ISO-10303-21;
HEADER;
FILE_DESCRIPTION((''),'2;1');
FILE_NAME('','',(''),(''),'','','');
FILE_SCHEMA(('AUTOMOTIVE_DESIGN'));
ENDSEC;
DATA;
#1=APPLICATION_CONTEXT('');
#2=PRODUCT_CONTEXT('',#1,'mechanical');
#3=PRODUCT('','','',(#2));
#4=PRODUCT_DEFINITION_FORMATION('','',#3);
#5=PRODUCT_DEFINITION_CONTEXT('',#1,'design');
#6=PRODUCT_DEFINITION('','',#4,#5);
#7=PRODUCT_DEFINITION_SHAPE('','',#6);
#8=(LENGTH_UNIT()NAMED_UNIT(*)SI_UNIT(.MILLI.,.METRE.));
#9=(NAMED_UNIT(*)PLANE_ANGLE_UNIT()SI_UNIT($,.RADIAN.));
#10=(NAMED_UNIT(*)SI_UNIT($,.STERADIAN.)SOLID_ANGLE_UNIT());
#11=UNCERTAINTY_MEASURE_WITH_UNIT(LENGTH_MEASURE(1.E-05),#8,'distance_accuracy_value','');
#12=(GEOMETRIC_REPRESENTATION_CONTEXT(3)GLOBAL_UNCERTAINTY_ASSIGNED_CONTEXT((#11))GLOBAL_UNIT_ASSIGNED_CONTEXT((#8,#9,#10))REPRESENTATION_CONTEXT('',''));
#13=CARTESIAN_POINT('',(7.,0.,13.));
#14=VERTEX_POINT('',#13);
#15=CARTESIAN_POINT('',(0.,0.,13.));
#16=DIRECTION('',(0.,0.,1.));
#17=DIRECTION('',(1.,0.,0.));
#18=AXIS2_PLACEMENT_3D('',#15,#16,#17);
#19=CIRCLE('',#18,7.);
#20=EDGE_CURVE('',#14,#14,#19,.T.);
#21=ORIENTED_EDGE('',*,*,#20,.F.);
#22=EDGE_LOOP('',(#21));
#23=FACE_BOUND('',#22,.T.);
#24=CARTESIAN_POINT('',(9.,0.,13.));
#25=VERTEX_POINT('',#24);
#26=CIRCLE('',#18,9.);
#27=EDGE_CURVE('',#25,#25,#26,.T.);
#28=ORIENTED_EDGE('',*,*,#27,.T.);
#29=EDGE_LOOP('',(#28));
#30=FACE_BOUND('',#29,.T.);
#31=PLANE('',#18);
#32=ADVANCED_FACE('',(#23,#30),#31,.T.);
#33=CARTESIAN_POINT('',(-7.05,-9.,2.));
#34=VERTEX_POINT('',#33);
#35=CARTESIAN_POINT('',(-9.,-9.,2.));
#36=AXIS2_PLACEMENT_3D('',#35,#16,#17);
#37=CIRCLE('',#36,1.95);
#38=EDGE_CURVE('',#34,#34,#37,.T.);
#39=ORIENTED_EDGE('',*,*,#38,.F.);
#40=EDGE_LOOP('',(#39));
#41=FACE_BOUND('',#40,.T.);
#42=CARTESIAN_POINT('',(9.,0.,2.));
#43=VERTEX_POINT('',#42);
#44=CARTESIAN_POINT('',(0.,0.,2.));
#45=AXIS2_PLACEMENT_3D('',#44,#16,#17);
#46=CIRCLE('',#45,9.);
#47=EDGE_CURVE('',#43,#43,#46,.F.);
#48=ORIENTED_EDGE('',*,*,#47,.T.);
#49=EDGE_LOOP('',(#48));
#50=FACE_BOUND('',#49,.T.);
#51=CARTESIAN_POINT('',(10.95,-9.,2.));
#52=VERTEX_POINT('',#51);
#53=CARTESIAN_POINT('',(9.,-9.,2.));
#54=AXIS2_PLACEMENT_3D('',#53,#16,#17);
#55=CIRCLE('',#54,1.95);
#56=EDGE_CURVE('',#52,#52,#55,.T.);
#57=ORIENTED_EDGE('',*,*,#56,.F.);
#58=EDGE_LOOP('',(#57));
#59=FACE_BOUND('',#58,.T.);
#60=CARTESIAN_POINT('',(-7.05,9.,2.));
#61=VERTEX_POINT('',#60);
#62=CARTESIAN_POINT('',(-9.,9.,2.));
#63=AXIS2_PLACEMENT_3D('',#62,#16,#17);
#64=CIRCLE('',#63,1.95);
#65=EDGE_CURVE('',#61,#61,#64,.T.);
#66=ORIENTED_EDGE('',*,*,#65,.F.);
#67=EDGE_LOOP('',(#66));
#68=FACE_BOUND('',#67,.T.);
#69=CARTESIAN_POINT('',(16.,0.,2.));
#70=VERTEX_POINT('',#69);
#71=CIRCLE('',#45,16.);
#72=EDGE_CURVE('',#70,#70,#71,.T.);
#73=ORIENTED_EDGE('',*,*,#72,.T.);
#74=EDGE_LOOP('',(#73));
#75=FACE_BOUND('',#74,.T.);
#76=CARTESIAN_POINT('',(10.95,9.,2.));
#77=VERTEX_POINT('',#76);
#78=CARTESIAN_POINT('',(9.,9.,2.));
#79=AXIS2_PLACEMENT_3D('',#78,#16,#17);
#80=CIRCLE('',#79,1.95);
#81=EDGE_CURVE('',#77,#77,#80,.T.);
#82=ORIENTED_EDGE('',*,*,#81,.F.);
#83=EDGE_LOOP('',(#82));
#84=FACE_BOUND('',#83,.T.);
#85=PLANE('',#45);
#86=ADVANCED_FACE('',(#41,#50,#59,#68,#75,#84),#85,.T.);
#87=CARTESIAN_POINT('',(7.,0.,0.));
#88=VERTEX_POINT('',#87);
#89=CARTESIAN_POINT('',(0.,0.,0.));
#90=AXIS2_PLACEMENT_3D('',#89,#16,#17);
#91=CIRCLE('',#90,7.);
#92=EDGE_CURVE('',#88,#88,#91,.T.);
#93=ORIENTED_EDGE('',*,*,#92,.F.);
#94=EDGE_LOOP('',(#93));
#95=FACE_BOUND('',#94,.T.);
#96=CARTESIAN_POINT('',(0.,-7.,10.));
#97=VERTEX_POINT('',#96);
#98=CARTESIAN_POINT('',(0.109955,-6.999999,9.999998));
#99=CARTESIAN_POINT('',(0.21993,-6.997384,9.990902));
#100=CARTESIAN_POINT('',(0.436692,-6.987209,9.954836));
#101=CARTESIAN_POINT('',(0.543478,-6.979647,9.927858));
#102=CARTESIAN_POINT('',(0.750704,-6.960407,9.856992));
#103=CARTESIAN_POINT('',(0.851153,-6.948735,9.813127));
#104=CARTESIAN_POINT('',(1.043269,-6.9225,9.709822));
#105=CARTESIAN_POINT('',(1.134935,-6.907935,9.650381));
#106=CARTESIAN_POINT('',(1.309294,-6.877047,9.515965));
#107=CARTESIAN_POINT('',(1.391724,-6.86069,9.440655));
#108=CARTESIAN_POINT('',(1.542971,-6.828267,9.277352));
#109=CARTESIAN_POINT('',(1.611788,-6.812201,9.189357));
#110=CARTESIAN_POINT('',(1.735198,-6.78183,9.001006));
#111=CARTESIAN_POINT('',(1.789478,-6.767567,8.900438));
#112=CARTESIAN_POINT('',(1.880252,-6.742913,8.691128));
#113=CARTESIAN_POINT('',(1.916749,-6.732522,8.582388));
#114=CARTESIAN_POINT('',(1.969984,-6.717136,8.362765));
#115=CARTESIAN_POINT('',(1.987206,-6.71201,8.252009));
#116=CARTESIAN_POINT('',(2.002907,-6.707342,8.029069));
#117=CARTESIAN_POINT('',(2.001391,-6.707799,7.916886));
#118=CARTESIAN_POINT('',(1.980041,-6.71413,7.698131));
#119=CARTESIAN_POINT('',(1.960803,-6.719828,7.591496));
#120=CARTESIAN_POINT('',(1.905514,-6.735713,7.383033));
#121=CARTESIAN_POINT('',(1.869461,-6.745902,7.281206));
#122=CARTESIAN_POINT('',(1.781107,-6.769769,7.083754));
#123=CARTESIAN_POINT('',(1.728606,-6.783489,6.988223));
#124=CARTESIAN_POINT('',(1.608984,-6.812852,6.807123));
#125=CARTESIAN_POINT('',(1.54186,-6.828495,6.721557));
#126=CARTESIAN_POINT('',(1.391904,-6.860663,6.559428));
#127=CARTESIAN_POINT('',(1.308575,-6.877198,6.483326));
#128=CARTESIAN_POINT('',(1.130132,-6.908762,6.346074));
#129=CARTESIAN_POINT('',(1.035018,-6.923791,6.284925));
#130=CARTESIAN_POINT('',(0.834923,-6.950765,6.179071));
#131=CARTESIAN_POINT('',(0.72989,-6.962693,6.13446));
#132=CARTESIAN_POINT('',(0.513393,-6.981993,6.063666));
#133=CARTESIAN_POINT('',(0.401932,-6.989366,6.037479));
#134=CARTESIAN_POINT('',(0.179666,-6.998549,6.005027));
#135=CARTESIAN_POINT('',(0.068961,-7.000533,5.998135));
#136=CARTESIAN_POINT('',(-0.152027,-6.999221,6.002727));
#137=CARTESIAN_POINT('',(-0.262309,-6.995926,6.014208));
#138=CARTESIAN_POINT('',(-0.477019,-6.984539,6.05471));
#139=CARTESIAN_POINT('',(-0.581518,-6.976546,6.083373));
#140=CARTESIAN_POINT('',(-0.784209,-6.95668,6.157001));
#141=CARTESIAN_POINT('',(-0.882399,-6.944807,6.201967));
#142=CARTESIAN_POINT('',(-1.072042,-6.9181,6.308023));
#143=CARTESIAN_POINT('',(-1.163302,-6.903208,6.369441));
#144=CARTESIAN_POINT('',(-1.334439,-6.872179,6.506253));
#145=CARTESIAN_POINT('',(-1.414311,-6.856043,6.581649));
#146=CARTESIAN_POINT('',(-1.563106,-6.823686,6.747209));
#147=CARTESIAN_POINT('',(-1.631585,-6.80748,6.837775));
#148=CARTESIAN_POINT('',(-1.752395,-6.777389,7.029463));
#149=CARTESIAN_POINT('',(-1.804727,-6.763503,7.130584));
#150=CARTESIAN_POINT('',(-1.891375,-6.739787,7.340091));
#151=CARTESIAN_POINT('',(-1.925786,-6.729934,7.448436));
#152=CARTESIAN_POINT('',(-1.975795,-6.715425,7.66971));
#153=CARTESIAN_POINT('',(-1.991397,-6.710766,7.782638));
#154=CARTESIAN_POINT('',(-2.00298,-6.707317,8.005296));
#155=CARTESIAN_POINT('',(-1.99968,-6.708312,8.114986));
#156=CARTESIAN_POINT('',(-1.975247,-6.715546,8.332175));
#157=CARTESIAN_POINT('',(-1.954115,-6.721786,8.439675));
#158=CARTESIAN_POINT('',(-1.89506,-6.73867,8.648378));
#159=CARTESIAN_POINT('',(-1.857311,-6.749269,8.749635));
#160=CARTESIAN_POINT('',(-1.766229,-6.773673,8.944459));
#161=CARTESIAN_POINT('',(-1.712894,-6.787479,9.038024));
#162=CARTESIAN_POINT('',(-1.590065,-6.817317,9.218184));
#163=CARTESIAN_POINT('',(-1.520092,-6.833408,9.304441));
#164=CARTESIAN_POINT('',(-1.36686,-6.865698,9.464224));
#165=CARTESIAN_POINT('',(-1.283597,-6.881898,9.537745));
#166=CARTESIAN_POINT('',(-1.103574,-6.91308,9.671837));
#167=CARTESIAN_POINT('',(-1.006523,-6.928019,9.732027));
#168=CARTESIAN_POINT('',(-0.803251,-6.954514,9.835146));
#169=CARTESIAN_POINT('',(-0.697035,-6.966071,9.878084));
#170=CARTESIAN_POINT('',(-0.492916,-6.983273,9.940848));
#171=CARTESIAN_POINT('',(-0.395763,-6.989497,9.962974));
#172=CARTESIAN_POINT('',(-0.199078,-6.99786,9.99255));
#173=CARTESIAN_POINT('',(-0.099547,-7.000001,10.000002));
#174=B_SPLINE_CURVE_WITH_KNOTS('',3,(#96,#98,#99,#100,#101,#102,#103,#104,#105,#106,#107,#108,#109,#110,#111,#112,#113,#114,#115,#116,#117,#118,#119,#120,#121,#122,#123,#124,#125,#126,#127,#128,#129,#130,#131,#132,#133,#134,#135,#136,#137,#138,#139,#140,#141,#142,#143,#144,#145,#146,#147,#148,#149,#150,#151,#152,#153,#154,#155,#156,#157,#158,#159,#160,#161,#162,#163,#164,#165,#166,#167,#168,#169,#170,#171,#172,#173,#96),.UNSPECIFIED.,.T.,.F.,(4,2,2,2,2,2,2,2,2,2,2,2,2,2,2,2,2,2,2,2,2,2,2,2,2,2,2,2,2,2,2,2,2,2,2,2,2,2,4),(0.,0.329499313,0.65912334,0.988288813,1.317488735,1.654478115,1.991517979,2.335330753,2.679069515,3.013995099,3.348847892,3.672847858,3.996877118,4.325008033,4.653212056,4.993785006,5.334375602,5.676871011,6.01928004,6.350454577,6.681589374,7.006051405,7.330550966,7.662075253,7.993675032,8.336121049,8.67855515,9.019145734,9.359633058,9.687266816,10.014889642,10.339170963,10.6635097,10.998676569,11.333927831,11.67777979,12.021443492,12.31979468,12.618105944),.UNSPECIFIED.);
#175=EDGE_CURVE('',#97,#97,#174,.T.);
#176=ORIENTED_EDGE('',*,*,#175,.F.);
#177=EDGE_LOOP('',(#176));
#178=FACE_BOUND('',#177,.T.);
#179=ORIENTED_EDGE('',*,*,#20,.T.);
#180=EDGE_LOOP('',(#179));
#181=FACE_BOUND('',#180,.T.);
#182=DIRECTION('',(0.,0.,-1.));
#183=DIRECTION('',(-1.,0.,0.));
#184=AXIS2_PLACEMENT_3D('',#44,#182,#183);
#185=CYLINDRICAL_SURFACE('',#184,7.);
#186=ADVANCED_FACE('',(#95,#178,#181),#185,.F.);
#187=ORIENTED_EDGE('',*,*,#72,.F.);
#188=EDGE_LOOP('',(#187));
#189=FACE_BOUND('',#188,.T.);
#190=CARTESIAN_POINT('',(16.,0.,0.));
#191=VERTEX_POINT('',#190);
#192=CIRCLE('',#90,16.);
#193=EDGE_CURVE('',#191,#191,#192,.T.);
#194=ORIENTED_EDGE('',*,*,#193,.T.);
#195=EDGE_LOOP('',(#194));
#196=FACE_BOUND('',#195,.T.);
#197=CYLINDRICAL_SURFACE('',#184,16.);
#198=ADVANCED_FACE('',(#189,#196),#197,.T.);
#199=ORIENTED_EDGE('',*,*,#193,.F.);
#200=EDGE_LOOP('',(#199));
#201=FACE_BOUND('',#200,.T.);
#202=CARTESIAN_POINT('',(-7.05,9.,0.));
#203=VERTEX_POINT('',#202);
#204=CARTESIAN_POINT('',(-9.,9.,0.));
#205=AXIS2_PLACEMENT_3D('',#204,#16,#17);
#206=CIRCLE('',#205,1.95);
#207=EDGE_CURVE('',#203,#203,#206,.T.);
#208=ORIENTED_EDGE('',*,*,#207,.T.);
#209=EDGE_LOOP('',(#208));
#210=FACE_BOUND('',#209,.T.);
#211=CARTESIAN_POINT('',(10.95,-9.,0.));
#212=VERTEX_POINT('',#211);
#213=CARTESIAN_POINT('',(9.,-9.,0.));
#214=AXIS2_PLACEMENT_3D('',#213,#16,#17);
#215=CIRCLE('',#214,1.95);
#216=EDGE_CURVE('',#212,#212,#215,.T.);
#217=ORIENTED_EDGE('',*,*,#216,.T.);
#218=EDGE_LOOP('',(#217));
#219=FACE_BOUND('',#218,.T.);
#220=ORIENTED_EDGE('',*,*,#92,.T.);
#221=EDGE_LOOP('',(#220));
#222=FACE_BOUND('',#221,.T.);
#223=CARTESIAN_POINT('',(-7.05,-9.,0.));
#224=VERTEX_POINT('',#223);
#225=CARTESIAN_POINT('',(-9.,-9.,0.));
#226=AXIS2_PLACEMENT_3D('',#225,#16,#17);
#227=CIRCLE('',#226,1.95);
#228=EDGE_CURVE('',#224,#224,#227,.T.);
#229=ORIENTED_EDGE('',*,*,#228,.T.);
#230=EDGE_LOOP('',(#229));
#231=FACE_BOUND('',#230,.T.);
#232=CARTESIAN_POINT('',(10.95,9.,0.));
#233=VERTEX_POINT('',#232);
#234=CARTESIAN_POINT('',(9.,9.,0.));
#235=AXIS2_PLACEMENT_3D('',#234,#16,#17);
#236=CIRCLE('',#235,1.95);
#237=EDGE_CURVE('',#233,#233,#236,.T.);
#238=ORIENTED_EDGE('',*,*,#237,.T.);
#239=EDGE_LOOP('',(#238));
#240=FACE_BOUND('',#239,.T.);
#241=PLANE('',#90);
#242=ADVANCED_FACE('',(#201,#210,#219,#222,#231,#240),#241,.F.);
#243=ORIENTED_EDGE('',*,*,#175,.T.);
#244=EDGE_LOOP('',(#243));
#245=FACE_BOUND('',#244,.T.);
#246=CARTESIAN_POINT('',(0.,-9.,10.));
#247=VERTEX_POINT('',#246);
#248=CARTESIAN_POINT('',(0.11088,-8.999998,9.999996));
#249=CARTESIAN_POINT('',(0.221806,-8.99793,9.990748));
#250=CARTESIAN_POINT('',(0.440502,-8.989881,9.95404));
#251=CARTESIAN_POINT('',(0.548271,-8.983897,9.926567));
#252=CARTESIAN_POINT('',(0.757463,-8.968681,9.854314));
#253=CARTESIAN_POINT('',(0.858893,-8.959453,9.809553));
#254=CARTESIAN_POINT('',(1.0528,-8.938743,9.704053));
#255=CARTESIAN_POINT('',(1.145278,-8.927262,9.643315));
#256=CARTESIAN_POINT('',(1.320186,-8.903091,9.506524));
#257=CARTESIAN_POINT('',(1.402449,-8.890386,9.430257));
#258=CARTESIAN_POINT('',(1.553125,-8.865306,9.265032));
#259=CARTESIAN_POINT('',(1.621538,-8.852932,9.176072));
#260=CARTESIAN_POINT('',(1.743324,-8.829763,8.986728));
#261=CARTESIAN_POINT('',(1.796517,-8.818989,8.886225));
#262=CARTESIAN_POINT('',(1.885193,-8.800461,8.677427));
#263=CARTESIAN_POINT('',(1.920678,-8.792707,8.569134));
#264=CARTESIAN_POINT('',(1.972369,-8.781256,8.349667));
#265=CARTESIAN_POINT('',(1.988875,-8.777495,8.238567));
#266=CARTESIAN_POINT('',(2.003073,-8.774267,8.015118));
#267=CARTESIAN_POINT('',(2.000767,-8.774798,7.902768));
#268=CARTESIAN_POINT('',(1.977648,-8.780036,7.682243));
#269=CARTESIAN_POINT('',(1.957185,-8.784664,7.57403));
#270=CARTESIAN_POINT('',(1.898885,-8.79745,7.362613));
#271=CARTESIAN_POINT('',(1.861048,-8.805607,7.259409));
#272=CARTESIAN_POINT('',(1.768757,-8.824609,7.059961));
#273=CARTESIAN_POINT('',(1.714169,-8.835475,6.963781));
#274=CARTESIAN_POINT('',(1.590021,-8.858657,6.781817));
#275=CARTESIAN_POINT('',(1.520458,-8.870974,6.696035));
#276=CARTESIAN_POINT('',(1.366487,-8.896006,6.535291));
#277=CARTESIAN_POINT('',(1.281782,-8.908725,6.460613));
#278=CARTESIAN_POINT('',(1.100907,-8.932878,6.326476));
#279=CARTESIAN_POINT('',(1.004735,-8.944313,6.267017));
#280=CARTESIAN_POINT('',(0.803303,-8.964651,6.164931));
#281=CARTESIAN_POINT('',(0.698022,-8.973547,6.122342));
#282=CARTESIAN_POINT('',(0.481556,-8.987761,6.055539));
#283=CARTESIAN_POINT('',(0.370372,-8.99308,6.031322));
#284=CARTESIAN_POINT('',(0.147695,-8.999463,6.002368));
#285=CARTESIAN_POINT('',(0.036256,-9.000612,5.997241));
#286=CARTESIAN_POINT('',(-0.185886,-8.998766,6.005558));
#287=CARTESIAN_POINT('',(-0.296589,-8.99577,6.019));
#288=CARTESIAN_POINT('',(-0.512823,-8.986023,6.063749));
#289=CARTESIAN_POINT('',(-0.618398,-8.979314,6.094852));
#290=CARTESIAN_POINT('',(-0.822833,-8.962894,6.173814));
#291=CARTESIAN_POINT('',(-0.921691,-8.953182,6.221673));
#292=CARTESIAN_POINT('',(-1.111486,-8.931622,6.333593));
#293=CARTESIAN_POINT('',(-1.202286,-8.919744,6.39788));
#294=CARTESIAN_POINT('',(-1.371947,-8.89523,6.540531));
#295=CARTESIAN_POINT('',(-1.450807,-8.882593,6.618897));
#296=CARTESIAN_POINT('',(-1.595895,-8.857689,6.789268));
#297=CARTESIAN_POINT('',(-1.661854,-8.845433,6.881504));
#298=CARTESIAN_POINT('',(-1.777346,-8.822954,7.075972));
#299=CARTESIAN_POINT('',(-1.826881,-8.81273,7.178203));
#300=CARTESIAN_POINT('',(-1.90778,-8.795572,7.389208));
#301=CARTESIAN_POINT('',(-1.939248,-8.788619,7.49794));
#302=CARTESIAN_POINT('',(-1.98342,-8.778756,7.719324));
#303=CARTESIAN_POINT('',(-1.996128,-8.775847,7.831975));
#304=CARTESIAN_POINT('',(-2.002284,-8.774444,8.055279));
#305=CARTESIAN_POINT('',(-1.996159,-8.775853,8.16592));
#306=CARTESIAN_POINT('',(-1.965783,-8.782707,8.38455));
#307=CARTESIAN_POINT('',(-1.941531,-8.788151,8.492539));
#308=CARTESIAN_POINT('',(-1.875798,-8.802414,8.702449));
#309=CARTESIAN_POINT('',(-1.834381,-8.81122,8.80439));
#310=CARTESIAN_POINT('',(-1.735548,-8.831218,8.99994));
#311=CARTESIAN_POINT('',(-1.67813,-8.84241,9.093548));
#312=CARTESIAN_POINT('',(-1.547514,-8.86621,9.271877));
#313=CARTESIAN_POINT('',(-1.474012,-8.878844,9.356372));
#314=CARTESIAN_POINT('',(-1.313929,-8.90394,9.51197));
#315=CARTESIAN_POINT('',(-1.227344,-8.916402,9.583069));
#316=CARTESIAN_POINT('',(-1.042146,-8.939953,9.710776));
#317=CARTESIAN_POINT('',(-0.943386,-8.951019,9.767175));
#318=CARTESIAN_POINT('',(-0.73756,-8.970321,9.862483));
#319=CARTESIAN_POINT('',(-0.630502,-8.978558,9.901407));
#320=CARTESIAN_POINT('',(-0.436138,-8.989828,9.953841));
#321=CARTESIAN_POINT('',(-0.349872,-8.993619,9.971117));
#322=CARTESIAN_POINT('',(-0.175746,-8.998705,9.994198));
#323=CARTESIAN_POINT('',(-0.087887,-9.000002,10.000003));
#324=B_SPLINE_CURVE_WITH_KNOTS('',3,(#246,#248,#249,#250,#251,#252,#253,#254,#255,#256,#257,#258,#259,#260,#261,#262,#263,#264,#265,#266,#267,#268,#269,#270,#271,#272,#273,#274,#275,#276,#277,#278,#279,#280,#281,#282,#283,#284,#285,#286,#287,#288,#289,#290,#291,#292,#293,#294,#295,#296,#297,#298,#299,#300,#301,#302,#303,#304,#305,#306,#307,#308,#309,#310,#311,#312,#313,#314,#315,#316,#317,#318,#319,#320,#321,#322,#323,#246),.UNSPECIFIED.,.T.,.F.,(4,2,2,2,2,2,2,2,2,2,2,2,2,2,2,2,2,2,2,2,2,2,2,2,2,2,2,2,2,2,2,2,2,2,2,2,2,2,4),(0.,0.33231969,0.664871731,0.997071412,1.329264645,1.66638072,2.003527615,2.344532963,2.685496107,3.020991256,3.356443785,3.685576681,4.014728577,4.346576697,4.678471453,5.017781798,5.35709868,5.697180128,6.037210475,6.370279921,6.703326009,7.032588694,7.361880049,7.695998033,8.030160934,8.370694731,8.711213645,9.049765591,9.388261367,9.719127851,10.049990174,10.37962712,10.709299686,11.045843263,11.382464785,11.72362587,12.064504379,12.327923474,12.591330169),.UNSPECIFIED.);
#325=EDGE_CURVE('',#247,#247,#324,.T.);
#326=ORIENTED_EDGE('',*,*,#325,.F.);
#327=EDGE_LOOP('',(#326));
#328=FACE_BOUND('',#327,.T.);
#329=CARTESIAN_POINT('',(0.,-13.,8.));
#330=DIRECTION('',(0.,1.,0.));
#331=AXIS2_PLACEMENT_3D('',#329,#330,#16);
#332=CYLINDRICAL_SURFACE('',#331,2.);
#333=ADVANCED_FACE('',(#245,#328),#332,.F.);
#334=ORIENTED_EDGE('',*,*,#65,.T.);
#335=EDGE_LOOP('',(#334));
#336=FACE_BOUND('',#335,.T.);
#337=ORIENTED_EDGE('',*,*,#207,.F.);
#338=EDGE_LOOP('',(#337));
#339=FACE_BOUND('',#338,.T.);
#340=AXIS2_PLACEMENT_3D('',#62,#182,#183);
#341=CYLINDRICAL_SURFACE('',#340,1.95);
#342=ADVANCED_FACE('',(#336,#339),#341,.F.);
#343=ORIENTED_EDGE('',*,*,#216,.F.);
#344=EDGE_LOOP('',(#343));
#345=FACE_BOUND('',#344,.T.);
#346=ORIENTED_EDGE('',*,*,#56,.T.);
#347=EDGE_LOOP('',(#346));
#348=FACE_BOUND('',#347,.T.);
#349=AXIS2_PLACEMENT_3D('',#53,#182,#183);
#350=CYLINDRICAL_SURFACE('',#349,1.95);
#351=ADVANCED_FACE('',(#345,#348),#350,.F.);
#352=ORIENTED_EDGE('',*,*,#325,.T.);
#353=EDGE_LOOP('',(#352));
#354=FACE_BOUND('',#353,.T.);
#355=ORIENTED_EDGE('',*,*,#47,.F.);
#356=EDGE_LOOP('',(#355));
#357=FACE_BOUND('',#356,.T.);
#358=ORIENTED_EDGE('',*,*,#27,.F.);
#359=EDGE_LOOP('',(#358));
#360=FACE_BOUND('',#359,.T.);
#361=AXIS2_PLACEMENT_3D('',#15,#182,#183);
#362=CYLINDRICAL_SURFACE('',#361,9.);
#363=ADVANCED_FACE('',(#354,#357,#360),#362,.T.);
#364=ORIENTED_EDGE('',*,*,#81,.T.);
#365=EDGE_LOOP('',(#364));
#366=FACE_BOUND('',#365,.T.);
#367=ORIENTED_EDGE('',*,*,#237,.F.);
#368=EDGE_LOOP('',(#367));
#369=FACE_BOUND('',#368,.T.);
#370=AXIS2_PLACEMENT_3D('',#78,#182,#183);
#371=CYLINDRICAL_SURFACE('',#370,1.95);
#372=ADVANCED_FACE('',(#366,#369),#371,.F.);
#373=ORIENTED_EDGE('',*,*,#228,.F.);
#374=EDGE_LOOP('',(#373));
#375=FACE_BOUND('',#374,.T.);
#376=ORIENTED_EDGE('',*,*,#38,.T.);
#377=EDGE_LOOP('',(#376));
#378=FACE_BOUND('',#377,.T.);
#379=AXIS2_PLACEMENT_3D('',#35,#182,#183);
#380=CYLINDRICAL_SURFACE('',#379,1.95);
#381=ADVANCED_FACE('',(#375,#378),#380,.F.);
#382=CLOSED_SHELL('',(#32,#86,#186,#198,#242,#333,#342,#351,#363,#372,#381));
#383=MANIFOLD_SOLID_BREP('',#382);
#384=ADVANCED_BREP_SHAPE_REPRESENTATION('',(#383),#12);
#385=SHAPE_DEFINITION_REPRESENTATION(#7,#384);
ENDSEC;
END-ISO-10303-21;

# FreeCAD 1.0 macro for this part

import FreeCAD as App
import Part
import Sketcher

doc = App.newDocument("Part")
body = doc.addObject("PartDesign::Body", "Body")

sketch1 = body.newObject("Sketcher::SketchObject", "Sketch")
sketch1.AttachmentSupport = (doc.getObject("XY_Plane"), [""])
sketch1.MapMode = "FlatFace"
sketch1.addGeometry(Part.Circle(App.Vector(0, 0, 0), App.Vector(0, 0, 1), 16), False)
sketch1.addGeometry(Part.Circle(App.Vector(-9, -9, 0), App.Vector(0, 0, 1), 1.95), False)
sketch1.addGeometry(Part.Circle(App.Vector(9, -9, 0), App.Vector(0, 0, 1), 1.95), False)
sketch1.addGeometry(Part.Circle(App.Vector(-9, 9, 0), App.Vector(0, 0, 1), 1.95), False)
sketch1.addGeometry(Part.Circle(App.Vector(9, 9, 0), App.Vector(0, 0, 1), 1.95), False)
sketch1.addGeometry(Part.Circle(App.Vector(0, 0, 0), App.Vector(0, 0, 1), 7), False)
sketch1.addConstraint(Sketcher.Constraint("Coincident", 0, 3, -1, 1))
sketch1.addConstraint(Sketcher.Constraint("Coincident", 5, 3, -1, 1))
sketch1.addConstraint(Sketcher.Constraint("Equal", 1, 2))
sketch1.addConstraint(Sketcher.Constraint("Equal", 2, 3))
sketch1.addConstraint(Sketcher.Constraint("Equal", 3, 4))
sketch1.addConstraint(Sketcher.Constraint("Symmetric", 2, 3, 3, 3, -1, 1))
sketch1.addConstraint(Sketcher.Constraint("Symmetric", 1, 3, 4, 3, -1, 1))
sketch1.addConstraint(Sketcher.Constraint("Symmetric", 1, 3, 2, 3, -2))
sketch1.addConstraint(Sketcher.Constraint("Diameter", 0, 32.0))
sketch1.addConstraint(Sketcher.Constraint("Diameter", 5, 14.0))
sketch1.addConstraint(Sketcher.Constraint("Diameter", 1, 3.9))
sketch1.addConstraint(Sketcher.Constraint("DistanceX", 1, 3, -1, 1, 9.0))
sketch1.addConstraint(Sketcher.Constraint("DistanceY", 1, 3, -1, 1, 9.0))
pad1 = body.newObject("PartDesign::Pad", "Pad")
pad1.Profile = sketch1
pad1.Length = 2

sketch2 = body.newObject("Sketcher::SketchObject", "Sketch001")
sketch2.AttachmentSupport = (doc.getObject("XY_Plane"), [""])
sketch2.MapMode = "FlatFace"
sketch2.addGeometry(Part.Circle(App.Vector(0, 0, 0), App.Vector(0, 0, 1), 9), False)
sketch2.addGeometry(Part.Circle(App.Vector(0, 0, 0), App.Vector(0, 0, 1), 7), False)
sketch2.addConstraint(Sketcher.Constraint("Coincident", 0, 3, -1, 1))
sketch2.addConstraint(Sketcher.Constraint("Coincident", 1, 3, -1, 1))
sketch2.addConstraint(Sketcher.Constraint("Diameter", 0, 18.0))
sketch2.addConstraint(Sketcher.Constraint("Diameter", 1, 14.0))
pad2 = body.newObject("PartDesign::Pad", "Pad001")
pad2.Profile = sketch2
pad2.Length = 13

sketch3 = body.newObject("Sketcher::SketchObject", "Sketch002")
sketch3.AttachmentSupport = (doc.getObject("XZ_Plane"), [""])
sketch3.MapMode = "FlatFace"
sketch3.addGeometry(Part.Circle(App.Vector(0, 8, 0), App.Vector(0, 0, 1), 2), False)
sketch3.addConstraint(Sketcher.Constraint("PointOnObject", 0, 3, -2))
sketch3.addConstraint(Sketcher.Constraint("Diameter", 0, 4.0))
sketch3.addConstraint(Sketcher.Constraint("DistanceY", -1, 1, 0, 3, 8.0))
pocket1 = body.newObject("PartDesign::Pocket", "Pocket")
pocket1.Profile = sketch3
pocket1.Length = 13
pocket1.Reversed = True

doc.recompute()
